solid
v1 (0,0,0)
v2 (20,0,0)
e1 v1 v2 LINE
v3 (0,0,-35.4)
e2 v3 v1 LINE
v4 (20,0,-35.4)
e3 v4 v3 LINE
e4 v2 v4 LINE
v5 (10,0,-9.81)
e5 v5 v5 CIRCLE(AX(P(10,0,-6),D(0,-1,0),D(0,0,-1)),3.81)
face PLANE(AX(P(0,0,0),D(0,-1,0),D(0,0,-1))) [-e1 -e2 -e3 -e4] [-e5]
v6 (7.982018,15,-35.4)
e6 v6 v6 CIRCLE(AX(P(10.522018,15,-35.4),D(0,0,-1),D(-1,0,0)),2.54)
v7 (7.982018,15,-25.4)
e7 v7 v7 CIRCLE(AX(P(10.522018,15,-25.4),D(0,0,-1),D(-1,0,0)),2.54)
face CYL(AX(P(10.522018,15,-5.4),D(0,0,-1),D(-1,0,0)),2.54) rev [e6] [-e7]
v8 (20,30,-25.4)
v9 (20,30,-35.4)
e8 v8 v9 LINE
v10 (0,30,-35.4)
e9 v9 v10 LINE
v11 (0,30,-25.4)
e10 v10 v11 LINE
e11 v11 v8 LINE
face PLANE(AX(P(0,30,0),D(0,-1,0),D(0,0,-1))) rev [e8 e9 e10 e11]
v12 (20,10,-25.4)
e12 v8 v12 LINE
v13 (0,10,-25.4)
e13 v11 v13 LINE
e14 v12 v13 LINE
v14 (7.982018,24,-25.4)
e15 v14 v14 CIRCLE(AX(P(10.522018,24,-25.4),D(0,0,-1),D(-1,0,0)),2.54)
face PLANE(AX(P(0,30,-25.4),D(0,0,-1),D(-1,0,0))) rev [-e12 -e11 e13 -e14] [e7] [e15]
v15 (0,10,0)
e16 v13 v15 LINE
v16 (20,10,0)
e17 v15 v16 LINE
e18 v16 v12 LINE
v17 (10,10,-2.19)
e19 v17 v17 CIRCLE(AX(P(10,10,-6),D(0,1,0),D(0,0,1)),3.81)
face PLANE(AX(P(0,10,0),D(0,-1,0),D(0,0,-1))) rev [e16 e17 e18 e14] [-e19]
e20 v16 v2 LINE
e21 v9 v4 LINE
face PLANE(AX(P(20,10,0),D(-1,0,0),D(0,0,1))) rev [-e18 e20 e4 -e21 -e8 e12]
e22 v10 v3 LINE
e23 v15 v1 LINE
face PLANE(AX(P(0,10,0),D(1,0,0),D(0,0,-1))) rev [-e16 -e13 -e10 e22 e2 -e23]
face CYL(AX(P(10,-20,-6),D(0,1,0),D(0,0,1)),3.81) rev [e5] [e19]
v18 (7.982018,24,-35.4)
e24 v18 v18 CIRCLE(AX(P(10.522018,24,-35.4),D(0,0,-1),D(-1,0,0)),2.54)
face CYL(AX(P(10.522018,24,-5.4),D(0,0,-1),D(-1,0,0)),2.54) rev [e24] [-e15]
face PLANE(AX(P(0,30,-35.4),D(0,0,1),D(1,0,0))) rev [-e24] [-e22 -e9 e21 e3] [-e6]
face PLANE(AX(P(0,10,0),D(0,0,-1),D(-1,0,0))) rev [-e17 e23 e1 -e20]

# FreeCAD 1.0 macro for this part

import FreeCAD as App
import Part
import Sketcher
Q = App.Units.Quantity


def add_polygon(sketch, points):
    """Adds a closed chain of lines whose ends are joined by coincident constraints."""
    first, n = sketch.GeometryCount, len(points)
    for a, b in zip(points, points[1:] + points[:1]):
        sketch.addGeometry(Part.LineSegment(App.Vector(*a, 0), App.Vector(*b, 0)), False)
    for i in range(n):
        sketch.addConstraint(Sketcher.Constraint("Coincident", first + i, 2, first + (i + 1) % n, 1))

doc = App.newDocument("Part")
body = doc.addObject("PartDesign::Body", "Body")

# Sketch on XZ plane
sketch1 = doc.addObject("Sketcher::SketchObject", "Sketch")
body.addObject(sketch1)
sketch1.AttachmentSupport = (doc.XZ_Plane, [""])
sketch1.MapMode = "FlatFace"
add_polygon(sketch1, [(0, -25), (0, 0), (20, 0), (20, -25)])  # lines 0-3
sketch1.addConstraint([
    Sketcher.Constraint("Vertical", 0),
    Sketcher.Constraint("Horizontal", 1),
    Sketcher.Constraint("Vertical", 2),
    Sketcher.Constraint("Horizontal", 3),
    Sketcher.Constraint("Coincident", 0, 2, -1, 1),
    Sketcher.Constraint("DistanceX", 1, 1, 1, 2, Q("20 mm")),
    Sketcher.Constraint("DistanceY", 0, 1, 0, 2, Q("25.4 mm")),
])
pad1 = doc.addObject("PartDesign::Pad", "Pad")
body.addObject(pad1)
pad1.Profile = sketch1
pad1.Length = 10
pad1.Reversed = True

# Sketch on XZ plane
sketch2 = doc.addObject("Sketcher::SketchObject", "Sketch001")
body.addObject(sketch2)
sketch2.AttachmentSupport = (doc.XZ_Plane, [""])
sketch2.MapMode = "FlatFace"
add_polygon(sketch2, [(0, -35), (0, -25), (20, -25), (20, -35)])  # lines 0-3
sketch2.addConstraint([
    Sketcher.Constraint("Vertical", 0),
    Sketcher.Constraint("Horizontal", 1),
    Sketcher.Constraint("Vertical", 2),
    Sketcher.Constraint("Horizontal", 3),
    Sketcher.Constraint("PointOnObject", 0, 2, -2),
    Sketcher.Constraint("DistanceX", 1, 1, 1, 2, Q("20 mm")),
    Sketcher.Constraint("DistanceY", 0, 1, 0, 2, Q("10 mm")),
    Sketcher.Constraint("DistanceY", 0, 2, -1, 1, Q("25.4 mm")),
])
pad2 = doc.addObject("PartDesign::Pad", "Pad001")
body.addObject(pad2)
pad2.Profile = sketch2
pad2.Length = 30
pad2.Reversed = True

# Sketch on XZ plane
sketch3 = doc.addObject("Sketcher::SketchObject", "Sketch002")
body.addObject(sketch3)
sketch3.AttachmentSupport = (doc.XZ_Plane, [""])
sketch3.MapMode = "FlatFace"
sketch3.AttachmentOffset = App.Placement(App.Vector(0, 0, -10), App.Rotation())
sketch3.addGeometry(Part.Circle(App.Vector(10, -6, 0), App.Vector(0, 0, 1), 3.8), False)
sketch3.addConstraint([
    Sketcher.Constraint("Diameter", 0, Q("7.62 mm")),
    Sketcher.Constraint("DistanceX", -1, 1, 0, 3, Q("10 mm")),
    Sketcher.Constraint("DistanceY", 0, 3, -1, 1, Q("6 mm")),
])
pocket1 = doc.addObject("PartDesign::Pocket", "Pocket")
body.addObject(pocket1)
pocket1.Profile = sketch3
pocket1.Length = 30
pocket1.Reversed = True

# Sketch on XY plane
sketch4 = doc.addObject("Sketcher::SketchObject", "Sketch003")
body.addObject(sketch4)
sketch4.AttachmentSupport = (doc.XY_Plane, [""])
sketch4.MapMode = "FlatFace"
sketch4.AttachmentOffset = App.Placement(App.Vector(0, 0, -35.4), App.Rotation())
sketch4.addGeometry([
    Part.Circle(App.Vector(10.5, 24, 0), App.Vector(0, 0, 1), 2.5),
    Part.Circle(App.Vector(10.5, 15, 0), App.Vector(0, 0, 1), 2.5),
], False)
sketch4.addConstraint([
    Sketcher.Constraint("Equal", 0, 1),
    Sketcher.Constraint("Vertical", 0, 3, 1, 3),
    Sketcher.Constraint("Diameter", 0, Q("5.08 mm")),
    Sketcher.Constraint("DistanceY", -1, 1, 0, 3, Q("24 mm")),
    Sketcher.Constraint("DistanceY", -1, 1, 1, 3, Q("15 mm")),
    Sketcher.Constraint("DistanceX", -1, 1, 0, 3, Q("10.522018 mm")),
])
pocket2 = doc.addObject("PartDesign::Pocket", "Pocket001")
body.addObject(pocket2)
pocket2.Profile = sketch4
pocket2.Length = 30
pocket2.Reversed = True

doc.recompute()
